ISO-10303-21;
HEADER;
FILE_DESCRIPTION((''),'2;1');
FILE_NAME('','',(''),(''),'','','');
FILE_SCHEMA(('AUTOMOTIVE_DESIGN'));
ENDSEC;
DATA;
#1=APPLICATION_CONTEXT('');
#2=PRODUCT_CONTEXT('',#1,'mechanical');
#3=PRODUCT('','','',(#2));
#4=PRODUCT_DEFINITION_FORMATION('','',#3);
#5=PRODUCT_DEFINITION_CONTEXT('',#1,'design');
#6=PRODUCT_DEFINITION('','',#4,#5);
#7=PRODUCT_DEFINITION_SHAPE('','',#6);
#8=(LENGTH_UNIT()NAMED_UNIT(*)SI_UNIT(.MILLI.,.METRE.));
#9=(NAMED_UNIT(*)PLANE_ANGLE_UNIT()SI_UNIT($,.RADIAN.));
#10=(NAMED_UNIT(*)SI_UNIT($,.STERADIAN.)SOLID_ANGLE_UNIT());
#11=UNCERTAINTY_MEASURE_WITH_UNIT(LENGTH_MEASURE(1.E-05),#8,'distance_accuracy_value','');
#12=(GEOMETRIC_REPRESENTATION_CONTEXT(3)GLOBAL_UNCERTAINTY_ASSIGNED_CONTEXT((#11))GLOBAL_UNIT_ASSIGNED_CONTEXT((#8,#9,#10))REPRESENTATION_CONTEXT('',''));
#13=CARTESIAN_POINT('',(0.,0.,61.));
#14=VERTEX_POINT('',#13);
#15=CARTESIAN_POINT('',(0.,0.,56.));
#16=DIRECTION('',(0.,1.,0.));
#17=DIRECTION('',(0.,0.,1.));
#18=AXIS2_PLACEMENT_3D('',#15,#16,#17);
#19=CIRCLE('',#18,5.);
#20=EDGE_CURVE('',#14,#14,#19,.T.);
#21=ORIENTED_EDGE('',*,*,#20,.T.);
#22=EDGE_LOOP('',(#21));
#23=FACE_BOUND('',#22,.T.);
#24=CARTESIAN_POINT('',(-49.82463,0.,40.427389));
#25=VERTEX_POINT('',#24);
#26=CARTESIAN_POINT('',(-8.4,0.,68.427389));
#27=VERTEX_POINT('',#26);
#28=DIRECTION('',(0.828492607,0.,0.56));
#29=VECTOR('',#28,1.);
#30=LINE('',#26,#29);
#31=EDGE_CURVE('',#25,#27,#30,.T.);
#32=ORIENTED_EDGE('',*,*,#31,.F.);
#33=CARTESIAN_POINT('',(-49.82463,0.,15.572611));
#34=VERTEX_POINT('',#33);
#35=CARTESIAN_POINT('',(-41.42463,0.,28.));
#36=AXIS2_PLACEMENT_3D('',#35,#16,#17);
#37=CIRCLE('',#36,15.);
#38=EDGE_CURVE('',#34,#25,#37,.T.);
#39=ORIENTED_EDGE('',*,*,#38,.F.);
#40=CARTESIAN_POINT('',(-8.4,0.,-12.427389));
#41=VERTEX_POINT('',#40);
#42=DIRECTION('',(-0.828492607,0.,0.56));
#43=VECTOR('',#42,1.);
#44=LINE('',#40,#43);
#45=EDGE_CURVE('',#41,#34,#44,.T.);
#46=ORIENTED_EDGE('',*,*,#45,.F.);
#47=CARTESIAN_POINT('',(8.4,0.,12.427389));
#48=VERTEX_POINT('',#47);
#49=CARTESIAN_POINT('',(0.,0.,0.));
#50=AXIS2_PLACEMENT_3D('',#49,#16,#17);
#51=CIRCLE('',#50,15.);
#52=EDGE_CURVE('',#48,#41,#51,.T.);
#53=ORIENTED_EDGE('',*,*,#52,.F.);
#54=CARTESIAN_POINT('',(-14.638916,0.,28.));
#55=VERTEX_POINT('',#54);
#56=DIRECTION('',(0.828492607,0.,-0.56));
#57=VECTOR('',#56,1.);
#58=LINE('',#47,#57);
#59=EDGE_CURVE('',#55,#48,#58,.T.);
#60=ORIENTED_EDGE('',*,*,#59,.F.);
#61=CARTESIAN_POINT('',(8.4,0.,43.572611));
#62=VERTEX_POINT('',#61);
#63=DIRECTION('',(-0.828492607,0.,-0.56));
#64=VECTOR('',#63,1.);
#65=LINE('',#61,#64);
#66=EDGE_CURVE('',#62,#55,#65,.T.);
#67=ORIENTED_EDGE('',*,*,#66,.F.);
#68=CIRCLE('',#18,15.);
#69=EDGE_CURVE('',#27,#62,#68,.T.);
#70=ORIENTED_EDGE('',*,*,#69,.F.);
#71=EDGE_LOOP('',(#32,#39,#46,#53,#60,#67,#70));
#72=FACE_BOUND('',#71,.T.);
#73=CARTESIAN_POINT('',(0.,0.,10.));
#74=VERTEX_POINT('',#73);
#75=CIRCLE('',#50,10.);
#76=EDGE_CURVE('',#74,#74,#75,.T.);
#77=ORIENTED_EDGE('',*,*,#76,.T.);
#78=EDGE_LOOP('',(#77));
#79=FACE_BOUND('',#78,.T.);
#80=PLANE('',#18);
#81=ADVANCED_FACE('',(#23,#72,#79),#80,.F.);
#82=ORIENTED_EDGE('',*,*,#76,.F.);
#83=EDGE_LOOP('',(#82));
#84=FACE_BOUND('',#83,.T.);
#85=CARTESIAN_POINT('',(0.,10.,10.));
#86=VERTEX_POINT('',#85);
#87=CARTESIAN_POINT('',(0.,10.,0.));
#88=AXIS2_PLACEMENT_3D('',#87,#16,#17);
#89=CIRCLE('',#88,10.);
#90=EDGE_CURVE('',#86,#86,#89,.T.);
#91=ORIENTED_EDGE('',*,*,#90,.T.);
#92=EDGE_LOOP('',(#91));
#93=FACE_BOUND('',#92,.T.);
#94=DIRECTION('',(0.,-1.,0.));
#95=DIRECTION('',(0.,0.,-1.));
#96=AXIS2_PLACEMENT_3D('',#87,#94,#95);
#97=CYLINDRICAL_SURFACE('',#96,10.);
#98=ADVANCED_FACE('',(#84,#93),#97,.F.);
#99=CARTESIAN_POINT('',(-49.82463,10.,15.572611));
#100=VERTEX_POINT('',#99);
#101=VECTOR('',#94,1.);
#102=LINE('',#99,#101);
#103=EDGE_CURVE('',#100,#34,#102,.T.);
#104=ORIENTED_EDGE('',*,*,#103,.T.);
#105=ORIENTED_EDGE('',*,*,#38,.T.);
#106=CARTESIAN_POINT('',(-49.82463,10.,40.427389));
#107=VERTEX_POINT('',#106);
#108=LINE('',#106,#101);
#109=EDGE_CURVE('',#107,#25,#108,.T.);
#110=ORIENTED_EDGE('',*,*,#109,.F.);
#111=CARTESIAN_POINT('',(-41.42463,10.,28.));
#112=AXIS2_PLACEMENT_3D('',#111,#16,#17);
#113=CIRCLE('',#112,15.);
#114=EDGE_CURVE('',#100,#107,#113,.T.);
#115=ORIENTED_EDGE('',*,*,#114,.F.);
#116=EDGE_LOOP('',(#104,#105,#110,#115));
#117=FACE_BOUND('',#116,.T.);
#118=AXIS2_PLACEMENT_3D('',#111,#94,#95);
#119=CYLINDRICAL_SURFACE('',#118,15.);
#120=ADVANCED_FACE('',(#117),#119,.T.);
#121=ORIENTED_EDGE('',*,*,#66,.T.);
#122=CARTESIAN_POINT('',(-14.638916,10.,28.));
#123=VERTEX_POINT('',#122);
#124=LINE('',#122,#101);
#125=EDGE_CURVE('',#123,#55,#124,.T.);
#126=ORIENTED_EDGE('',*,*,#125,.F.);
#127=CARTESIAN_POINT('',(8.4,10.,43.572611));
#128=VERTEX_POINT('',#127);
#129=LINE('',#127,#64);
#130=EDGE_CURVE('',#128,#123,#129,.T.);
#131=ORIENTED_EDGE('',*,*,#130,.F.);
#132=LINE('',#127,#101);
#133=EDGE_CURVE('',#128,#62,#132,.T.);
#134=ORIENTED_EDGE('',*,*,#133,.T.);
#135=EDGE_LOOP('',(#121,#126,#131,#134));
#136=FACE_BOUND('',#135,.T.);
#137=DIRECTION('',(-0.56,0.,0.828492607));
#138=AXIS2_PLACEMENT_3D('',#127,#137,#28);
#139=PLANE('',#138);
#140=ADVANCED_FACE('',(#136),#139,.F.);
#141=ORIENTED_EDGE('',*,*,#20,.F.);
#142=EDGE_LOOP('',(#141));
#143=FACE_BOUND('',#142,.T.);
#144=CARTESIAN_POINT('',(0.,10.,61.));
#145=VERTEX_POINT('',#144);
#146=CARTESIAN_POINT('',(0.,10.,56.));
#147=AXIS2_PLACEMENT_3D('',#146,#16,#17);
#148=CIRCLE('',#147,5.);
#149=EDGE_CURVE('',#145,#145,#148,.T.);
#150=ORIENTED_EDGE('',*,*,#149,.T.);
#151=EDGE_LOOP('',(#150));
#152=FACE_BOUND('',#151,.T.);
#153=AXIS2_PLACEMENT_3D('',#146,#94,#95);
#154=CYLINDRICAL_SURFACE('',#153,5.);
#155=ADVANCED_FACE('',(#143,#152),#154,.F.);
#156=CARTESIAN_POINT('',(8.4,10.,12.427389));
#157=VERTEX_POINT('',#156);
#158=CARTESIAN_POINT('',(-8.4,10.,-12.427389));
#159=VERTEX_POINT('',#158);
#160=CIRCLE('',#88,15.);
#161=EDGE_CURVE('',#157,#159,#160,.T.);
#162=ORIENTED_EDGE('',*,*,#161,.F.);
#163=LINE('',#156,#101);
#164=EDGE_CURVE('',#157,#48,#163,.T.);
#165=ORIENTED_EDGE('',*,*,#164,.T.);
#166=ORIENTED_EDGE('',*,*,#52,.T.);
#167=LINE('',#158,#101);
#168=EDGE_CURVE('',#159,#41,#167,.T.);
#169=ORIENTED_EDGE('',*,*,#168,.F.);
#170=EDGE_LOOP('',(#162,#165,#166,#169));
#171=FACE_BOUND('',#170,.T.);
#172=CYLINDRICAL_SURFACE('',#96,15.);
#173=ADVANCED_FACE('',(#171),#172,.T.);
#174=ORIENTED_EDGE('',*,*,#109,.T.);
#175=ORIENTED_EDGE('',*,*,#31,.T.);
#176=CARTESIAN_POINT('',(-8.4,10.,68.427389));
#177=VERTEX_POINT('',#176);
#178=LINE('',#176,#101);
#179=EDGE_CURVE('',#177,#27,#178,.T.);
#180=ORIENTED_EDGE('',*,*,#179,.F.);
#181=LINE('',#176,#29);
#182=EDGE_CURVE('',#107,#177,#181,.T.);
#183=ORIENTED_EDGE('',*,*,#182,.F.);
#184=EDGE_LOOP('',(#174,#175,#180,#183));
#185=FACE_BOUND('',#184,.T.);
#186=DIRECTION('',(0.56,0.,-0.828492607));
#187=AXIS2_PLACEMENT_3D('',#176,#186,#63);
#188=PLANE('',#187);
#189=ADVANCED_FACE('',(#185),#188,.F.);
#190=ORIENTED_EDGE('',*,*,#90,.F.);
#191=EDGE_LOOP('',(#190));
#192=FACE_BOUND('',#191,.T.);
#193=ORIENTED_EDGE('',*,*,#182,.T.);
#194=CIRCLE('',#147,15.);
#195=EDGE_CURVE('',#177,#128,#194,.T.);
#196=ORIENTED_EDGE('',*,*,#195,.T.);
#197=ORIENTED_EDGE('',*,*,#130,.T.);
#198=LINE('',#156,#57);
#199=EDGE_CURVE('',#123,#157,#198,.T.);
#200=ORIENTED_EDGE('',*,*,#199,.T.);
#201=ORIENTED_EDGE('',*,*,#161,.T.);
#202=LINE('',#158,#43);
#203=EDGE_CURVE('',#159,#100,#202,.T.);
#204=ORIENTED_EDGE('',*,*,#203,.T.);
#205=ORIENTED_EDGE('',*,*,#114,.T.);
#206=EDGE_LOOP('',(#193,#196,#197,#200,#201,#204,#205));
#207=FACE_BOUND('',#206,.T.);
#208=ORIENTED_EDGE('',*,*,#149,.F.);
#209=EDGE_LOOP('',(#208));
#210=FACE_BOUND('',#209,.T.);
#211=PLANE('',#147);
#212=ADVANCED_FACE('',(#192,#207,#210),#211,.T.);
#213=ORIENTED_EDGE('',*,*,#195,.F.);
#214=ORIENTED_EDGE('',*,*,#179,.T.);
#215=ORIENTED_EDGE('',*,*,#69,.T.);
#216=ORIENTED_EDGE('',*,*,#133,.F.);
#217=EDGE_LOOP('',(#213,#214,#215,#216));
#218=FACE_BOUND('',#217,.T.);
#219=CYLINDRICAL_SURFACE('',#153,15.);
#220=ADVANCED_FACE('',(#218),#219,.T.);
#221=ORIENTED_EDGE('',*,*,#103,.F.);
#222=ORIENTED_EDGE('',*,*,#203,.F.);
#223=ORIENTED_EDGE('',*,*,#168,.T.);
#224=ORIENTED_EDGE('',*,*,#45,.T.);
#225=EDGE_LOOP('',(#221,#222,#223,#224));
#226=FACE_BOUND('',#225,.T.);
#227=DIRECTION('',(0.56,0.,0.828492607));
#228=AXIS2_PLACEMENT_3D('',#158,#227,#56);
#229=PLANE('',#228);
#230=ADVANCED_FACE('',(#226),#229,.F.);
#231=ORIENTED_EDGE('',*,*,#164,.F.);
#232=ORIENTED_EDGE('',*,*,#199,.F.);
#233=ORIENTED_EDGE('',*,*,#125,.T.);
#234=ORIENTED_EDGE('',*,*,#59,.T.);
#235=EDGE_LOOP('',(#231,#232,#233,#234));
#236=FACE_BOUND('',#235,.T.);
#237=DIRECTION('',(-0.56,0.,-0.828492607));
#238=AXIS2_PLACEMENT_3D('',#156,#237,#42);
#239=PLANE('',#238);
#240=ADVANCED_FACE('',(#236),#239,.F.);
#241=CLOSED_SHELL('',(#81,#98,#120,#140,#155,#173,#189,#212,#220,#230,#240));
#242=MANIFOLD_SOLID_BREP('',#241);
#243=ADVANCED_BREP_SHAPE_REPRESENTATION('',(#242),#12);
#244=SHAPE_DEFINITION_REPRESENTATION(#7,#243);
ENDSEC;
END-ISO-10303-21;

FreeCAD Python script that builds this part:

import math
import FreeCAD as App
import Part
import Sketcher
Q = App.Units.Quantity

doc = App.newDocument("Part")
body = doc.addObject("PartDesign::Body", "Body")

# Sketch on XZ plane
sketch1 = body.newObject("Sketcher::SketchObject", "Sketch")
sketch1.AttachmentSupport = (doc.getObject("XZ_Plane"), [""])
sketch1.MapMode = "FlatFace"
sketch1.addGeometry([
    Part.LineSegment(App.Vector(-8.4, -12.427389, 0), App.Vector(-49.82463, 15.572611, 0)),  # 0
    Part.ArcOfCircle(Part.Circle(App.Vector(-41.42463, 28, 0), App.Vector(0, 0, 1), 15), math.radians(124.055798), math.radians(235.944202)),  # 1
    Part.LineSegment(App.Vector(-49.82463, 40.427389, 0), App.Vector(-8.4, 68.427389, 0)),  # 2
    Part.ArcOfCircle(Part.Circle(App.Vector(0, 56, 0), App.Vector(0, 0, 1), 15), math.radians(-55.944202), math.radians(124.055798)),  # 3
    Part.LineSegment(App.Vector(8.4, 43.572611, 0), App.Vector(-14.638916, 28, 0)),  # 4
    Part.LineSegment(App.Vector(-14.638916, 28, 0), App.Vector(8.4, 12.427389, 0)),  # 5
    Part.ArcOfCircle(Part.Circle(App.Vector(0, 0, 0), App.Vector(0, 0, 1), 15), math.radians(-124.055798), math.radians(55.944202)),  # 6
    Part.Circle(App.Vector(0, 0, 0), App.Vector(0, 0, 1), 10),  # 7
    Part.Circle(App.Vector(0, 56, 0), App.Vector(0, 0, 1), 5),  # 8
], False)
sketch1.addConstraint([
    Sketcher.Constraint("Tangent", 0, 2, 1, 2),
    Sketcher.Constraint("Tangent", 1, 1, 2, 1),
    Sketcher.Constraint("Tangent", 2, 2, 3, 2),
    Sketcher.Constraint("Tangent", 3, 1, 4, 1),
    Sketcher.Constraint("Coincident", 4, 2, 5, 1),
    Sketcher.Constraint("Tangent", 5, 2, 6, 2),
    Sketcher.Constraint("Tangent", 6, 1, 0, 1),
    Sketcher.Constraint("Coincident", 6, 3, -1, 1),
    Sketcher.Constraint("Coincident", 7, 3, -1, 1),
    Sketcher.Constraint("Coincident", 8, 3, 3, 3),
    Sketcher.Constraint("Equal", 1, 3),
    Sketcher.Constraint("Equal", 3, 6),
    Sketcher.Constraint("PointOnObject", 3, 3, -2),
    Sketcher.Constraint("Parallel", 2, 4),
    Sketcher.Constraint("Parallel", 0, 5),
    Sketcher.Constraint("Horizontal", 1, 3, 4, 2),
    Sketcher.Constraint("Diameter", 7, Q("20 mm")),
    Sketcher.Constraint("Diameter", 8, Q("10 mm")),
    Sketcher.Constraint("Radius", 1, Q("15 mm")),
    Sketcher.Constraint("Distance", 0, Q("50 mm")),
    Sketcher.Constraint("DistanceY", -1, 1, 1, 3, Q("28 mm")),
])
pad1 = body.newObject("PartDesign::Pad", "Pad")
pad1.Profile = sketch1
pad1.Length = 10
pad1.Reversed = True

doc.recompute()
